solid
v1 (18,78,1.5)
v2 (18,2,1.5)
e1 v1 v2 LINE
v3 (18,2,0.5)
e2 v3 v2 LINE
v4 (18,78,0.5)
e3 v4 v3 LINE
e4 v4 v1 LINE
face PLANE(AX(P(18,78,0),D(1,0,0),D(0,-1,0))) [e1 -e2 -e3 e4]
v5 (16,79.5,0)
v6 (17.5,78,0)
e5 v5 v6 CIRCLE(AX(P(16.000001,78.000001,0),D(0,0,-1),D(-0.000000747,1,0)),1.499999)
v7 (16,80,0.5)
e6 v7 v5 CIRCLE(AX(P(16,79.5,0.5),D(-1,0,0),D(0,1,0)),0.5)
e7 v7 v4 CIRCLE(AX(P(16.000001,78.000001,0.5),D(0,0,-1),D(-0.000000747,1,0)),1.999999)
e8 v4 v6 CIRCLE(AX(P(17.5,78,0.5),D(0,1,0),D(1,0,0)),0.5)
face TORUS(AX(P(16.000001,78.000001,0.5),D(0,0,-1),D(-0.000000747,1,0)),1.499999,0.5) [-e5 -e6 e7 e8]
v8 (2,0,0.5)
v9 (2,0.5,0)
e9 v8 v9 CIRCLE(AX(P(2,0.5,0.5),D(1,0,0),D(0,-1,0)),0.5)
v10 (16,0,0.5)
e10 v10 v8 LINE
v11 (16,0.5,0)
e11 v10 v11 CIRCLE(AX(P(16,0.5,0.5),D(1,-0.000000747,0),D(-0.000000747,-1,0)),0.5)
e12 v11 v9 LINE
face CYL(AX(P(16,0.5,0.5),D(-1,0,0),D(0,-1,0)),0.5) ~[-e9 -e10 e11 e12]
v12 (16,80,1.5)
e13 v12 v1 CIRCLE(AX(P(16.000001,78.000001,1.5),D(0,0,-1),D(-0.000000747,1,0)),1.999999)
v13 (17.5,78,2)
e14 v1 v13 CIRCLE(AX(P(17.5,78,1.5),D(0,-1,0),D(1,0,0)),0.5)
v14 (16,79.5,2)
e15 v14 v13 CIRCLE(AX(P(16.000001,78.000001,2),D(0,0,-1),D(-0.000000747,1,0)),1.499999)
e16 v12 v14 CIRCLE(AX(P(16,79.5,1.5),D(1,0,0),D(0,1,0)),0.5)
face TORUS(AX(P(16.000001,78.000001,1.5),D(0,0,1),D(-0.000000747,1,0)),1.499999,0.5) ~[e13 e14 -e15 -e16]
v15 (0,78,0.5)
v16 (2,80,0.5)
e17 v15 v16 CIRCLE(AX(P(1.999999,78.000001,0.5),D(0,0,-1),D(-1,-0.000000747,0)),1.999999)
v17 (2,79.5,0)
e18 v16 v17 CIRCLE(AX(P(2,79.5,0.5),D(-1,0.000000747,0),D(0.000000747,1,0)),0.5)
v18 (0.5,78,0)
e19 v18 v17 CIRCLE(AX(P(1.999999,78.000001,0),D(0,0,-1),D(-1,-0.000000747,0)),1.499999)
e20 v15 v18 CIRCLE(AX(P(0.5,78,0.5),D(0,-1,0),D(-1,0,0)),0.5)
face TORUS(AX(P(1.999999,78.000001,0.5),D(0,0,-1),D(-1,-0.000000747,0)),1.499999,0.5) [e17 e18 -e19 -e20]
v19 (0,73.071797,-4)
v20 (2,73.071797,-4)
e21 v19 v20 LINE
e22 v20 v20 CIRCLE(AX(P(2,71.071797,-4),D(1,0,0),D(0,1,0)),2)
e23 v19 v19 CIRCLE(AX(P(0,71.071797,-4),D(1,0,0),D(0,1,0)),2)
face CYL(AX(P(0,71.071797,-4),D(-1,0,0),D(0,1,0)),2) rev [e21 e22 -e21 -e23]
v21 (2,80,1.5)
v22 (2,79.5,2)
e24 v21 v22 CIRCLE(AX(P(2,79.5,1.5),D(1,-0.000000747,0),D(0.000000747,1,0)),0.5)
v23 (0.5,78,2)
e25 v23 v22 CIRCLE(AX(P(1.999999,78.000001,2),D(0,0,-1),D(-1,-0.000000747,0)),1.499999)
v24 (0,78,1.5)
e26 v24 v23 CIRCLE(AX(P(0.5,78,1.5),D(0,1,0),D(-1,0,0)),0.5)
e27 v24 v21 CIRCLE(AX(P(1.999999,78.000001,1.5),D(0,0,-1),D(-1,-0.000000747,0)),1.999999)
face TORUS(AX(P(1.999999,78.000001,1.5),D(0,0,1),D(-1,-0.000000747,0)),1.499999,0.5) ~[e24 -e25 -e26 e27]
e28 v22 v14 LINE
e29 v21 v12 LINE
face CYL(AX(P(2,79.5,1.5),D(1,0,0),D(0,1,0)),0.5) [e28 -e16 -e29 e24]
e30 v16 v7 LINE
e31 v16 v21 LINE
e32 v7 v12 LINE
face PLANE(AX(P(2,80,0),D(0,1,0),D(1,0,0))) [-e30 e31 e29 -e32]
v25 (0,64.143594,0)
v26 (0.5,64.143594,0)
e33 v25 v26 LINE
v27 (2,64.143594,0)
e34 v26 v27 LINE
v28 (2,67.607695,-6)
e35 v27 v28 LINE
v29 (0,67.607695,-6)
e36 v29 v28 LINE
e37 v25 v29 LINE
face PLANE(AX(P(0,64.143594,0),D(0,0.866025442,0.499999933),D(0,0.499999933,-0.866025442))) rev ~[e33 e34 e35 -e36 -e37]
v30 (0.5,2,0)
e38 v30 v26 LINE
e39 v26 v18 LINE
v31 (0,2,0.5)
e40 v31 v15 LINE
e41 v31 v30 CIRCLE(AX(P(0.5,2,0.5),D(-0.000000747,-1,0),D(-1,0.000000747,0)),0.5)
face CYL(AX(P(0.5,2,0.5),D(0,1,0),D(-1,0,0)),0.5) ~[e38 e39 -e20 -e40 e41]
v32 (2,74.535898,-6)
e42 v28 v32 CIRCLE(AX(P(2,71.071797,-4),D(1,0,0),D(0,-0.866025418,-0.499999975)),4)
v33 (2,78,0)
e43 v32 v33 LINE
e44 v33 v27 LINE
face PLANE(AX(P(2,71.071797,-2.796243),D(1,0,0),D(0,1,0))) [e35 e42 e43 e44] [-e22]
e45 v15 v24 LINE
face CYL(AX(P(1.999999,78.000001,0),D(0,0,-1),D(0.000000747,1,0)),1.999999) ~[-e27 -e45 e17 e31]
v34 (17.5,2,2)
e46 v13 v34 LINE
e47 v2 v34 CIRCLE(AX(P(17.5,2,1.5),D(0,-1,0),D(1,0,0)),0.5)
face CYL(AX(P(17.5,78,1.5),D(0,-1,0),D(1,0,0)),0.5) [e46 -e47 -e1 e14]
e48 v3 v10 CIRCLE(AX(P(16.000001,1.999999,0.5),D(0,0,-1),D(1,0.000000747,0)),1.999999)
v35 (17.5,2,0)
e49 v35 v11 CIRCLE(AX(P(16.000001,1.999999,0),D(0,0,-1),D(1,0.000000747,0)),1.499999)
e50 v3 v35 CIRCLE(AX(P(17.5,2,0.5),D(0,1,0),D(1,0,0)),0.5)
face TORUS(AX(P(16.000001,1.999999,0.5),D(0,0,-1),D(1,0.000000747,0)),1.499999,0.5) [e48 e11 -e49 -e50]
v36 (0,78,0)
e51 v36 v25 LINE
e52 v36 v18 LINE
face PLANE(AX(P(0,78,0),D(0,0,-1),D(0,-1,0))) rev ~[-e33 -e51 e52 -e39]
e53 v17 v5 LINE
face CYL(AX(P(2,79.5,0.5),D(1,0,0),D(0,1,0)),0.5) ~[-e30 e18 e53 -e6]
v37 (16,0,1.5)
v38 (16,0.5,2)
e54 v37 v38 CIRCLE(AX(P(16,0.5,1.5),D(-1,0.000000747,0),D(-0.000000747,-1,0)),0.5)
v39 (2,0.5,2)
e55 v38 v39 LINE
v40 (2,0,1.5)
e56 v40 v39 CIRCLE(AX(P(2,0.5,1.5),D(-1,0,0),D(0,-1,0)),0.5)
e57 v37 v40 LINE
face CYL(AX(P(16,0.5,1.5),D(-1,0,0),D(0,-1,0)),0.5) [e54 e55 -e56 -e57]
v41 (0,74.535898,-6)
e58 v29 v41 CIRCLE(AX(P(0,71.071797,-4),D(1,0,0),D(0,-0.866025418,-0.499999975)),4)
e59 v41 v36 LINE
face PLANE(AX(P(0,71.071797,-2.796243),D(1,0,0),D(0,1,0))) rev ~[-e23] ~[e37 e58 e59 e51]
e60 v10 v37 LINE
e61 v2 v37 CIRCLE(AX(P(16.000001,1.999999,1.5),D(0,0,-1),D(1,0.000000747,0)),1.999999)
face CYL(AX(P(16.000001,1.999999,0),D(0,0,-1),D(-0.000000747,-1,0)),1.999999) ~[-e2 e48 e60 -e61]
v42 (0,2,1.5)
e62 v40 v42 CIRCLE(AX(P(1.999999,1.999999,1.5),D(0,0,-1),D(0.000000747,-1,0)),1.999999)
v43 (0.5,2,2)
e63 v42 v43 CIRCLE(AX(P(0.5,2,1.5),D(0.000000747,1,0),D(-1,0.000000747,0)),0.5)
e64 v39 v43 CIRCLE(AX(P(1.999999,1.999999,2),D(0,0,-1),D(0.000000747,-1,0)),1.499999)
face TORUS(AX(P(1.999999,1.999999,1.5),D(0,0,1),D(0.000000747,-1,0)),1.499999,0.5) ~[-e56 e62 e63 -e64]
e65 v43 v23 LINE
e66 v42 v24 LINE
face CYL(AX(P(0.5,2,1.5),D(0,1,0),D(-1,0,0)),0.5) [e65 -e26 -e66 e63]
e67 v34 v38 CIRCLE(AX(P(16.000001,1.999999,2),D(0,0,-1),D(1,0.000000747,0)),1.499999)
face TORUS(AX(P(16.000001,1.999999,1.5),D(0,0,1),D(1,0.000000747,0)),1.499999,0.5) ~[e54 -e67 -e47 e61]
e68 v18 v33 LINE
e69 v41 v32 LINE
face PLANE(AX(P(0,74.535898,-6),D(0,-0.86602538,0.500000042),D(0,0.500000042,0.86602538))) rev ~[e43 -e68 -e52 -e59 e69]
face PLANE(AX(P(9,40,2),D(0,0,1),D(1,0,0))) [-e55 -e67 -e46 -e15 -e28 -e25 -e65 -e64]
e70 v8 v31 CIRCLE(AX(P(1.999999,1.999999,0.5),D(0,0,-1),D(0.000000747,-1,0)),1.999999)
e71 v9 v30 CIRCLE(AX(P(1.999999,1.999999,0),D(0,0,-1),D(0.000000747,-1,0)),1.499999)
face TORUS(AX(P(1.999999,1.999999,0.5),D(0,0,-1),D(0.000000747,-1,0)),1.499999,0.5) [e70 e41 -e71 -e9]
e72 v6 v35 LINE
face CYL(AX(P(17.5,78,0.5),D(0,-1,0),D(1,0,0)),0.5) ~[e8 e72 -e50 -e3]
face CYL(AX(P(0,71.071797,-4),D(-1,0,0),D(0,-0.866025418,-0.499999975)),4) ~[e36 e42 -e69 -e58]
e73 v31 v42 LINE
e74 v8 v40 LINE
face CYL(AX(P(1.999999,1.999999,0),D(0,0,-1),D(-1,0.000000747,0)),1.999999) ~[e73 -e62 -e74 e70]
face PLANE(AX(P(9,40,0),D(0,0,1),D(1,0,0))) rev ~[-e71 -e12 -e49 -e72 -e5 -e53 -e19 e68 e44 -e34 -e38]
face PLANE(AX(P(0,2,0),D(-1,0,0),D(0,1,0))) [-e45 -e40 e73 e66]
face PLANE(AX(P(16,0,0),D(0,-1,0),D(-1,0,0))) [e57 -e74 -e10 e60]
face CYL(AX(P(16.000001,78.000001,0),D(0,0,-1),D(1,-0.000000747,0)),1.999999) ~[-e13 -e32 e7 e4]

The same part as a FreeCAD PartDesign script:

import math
import FreeCAD as App
import Part
import Sketcher

V = App.Vector
Q = App.Units.Quantity


def edges_at(feature, points):
    """Names of the edges that pass closest to the given points."""
    edges = feature.Shape.Edges
    near = lambda p: min(range(len(edges)), key=lambda i: edges[i].distToShape(Part.Vertex(*p))[0])
    return sorted({f"Edge{near(p) + 1}" for p in points})

doc = App.newDocument("Part")
body = doc.addObject("PartDesign::Body", "Body")

# Sketch on XY plane
sketch1 = body.newObject("Sketcher::SketchObject", "Sketch")
sketch1.AttachmentSupport = (doc.getObject("XY_Plane"), [""])
sketch1.MapMode = "FlatFace"
sketch1.addGeometry([
    Part.ArcOfCircle(Part.Circle(V(2, 2, 0), V(0, 0, 1), 2), math.radians(180), math.radians(270)),  # 0
    Part.LineSegment(V(2, 0, 0), V(16, 0, 0)),  # 1
    Part.ArcOfCircle(Part.Circle(V(16, 2, 0), V(0, 0, 1), 2), math.radians(-90), math.radians(0)),  # 2
    Part.LineSegment(V(18, 2, 0), V(18, 78, 0)),  # 3
    Part.ArcOfCircle(Part.Circle(V(16, 78, 0), V(0, 0, 1), 2), math.radians(0), math.radians(90)),  # 4
    Part.LineSegment(V(16, 80, 0), V(2, 80, 0)),  # 5
    Part.ArcOfCircle(Part.Circle(V(2, 78, 0), V(0, 0, 1), 2), math.radians(90), math.radians(180)),  # 6
    Part.LineSegment(V(0, 78, 0), V(0, 2, 0)),  # 7
], False)
sketch1.addConstraint([
    Sketcher.Constraint("Tangent", 0, 2, 1, 1),
    Sketcher.Constraint("Tangent", 1, 2, 2, 1),
    Sketcher.Constraint("Tangent", 2, 2, 3, 1),
    Sketcher.Constraint("Tangent", 3, 2, 4, 1),
    Sketcher.Constraint("Tangent", 4, 2, 5, 1),
    Sketcher.Constraint("Tangent", 5, 2, 6, 1),
    Sketcher.Constraint("Tangent", 6, 2, 7, 1),
    Sketcher.Constraint("Tangent", 7, 2, 0, 1),
    Sketcher.Constraint("Horizontal", 1),
    Sketcher.Constraint("Vertical", 3),
    Sketcher.Constraint("Horizontal", 5),
    Sketcher.Constraint("Vertical", 7),
    Sketcher.Constraint("Equal", 0, 2),
    Sketcher.Constraint("Equal", 2, 4),
    Sketcher.Constraint("Equal", 4, 6),
    Sketcher.Constraint("PointOnObject", 0, 2, -1),
    Sketcher.Constraint("PointOnObject", 6, 2, -2),
    Sketcher.Constraint("Radius", 0, Q("1.999999 mm")),
    Sketcher.Constraint("DistanceX", 1, 1, 1, 2, Q("14 mm")),
    Sketcher.Constraint("DistanceY", 3, 1, 3, 2, Q("76 mm")),
])
pad1 = body.newObject("PartDesign::Pad", "Pad")
pad1.Profile = sketch1
pad1.Length = 2
doc.recompute()

fillet = body.newObject("PartDesign::Fillet", "Fillet")
fillet.Base = (pad1, edges_at(pad1, [
    (18, 78, 1),
    (18, 2, 1),
    (18, 40, 0),
    (18, 40, 2),
]))
fillet.Radius = 0.5

# Sketch on YZ plane
sketch2 = body.newObject("Sketcher::SketchObject", "Sketch001")
sketch2.AttachmentSupport = (doc.getObject("YZ_Plane"), [""])
sketch2.MapMode = "FlatFace"
sketch2.addGeometry([
    Part.LineSegment(V(78, 0, 0), V(64.1, 0, 0)),  # 0
    Part.LineSegment(V(64.1, 0, 0), V(67.6, -6, 0)),  # 1
    Part.ArcOfCircle(Part.Circle(V(71.1, -4, 0), V(0, 0, 1), 4), math.radians(-150), math.radians(-30)),  # 2
    Part.LineSegment(V(74.5, -6, 0), V(78, 0, 0)),  # 3
    Part.Circle(V(71.1, -4, 0), V(0, 0, 1), 2),  # 4
], False)
sketch2.addConstraint([
    Sketcher.Constraint("Coincident", 0, 2, 1, 1),
    Sketcher.Constraint("Tangent", 1, 2, 2, 1),
    Sketcher.Constraint("Tangent", 2, 2, 3, 1),
    Sketcher.Constraint("Coincident", 3, 2, 0, 1),
    Sketcher.Constraint("Horizontal", 0),
    Sketcher.Constraint("Coincident", 4, 3, 2, 3),
    Sketcher.Constraint("PointOnObject", 0, 2, -1),
    Sketcher.Constraint("Horizontal", 1, 2, 2, 2),
    Sketcher.Constraint("Diameter", 4, Q("4 mm")),
    Sketcher.Constraint("Radius", 2, Q("4 mm")),
    Sketcher.Constraint("Angle", 1, Q("-60.000004 deg")),
    Sketcher.Constraint("DistanceY", 2, 3, -1, 1, Q("4 mm")),
    Sketcher.Constraint("DistanceX", -1, 1, 3, 2, Q("78 mm")),
])
pad2 = body.newObject("PartDesign::Pad", "Pad001")
pad2.Profile = sketch2
pad2.Length = 2

doc.recompute()
